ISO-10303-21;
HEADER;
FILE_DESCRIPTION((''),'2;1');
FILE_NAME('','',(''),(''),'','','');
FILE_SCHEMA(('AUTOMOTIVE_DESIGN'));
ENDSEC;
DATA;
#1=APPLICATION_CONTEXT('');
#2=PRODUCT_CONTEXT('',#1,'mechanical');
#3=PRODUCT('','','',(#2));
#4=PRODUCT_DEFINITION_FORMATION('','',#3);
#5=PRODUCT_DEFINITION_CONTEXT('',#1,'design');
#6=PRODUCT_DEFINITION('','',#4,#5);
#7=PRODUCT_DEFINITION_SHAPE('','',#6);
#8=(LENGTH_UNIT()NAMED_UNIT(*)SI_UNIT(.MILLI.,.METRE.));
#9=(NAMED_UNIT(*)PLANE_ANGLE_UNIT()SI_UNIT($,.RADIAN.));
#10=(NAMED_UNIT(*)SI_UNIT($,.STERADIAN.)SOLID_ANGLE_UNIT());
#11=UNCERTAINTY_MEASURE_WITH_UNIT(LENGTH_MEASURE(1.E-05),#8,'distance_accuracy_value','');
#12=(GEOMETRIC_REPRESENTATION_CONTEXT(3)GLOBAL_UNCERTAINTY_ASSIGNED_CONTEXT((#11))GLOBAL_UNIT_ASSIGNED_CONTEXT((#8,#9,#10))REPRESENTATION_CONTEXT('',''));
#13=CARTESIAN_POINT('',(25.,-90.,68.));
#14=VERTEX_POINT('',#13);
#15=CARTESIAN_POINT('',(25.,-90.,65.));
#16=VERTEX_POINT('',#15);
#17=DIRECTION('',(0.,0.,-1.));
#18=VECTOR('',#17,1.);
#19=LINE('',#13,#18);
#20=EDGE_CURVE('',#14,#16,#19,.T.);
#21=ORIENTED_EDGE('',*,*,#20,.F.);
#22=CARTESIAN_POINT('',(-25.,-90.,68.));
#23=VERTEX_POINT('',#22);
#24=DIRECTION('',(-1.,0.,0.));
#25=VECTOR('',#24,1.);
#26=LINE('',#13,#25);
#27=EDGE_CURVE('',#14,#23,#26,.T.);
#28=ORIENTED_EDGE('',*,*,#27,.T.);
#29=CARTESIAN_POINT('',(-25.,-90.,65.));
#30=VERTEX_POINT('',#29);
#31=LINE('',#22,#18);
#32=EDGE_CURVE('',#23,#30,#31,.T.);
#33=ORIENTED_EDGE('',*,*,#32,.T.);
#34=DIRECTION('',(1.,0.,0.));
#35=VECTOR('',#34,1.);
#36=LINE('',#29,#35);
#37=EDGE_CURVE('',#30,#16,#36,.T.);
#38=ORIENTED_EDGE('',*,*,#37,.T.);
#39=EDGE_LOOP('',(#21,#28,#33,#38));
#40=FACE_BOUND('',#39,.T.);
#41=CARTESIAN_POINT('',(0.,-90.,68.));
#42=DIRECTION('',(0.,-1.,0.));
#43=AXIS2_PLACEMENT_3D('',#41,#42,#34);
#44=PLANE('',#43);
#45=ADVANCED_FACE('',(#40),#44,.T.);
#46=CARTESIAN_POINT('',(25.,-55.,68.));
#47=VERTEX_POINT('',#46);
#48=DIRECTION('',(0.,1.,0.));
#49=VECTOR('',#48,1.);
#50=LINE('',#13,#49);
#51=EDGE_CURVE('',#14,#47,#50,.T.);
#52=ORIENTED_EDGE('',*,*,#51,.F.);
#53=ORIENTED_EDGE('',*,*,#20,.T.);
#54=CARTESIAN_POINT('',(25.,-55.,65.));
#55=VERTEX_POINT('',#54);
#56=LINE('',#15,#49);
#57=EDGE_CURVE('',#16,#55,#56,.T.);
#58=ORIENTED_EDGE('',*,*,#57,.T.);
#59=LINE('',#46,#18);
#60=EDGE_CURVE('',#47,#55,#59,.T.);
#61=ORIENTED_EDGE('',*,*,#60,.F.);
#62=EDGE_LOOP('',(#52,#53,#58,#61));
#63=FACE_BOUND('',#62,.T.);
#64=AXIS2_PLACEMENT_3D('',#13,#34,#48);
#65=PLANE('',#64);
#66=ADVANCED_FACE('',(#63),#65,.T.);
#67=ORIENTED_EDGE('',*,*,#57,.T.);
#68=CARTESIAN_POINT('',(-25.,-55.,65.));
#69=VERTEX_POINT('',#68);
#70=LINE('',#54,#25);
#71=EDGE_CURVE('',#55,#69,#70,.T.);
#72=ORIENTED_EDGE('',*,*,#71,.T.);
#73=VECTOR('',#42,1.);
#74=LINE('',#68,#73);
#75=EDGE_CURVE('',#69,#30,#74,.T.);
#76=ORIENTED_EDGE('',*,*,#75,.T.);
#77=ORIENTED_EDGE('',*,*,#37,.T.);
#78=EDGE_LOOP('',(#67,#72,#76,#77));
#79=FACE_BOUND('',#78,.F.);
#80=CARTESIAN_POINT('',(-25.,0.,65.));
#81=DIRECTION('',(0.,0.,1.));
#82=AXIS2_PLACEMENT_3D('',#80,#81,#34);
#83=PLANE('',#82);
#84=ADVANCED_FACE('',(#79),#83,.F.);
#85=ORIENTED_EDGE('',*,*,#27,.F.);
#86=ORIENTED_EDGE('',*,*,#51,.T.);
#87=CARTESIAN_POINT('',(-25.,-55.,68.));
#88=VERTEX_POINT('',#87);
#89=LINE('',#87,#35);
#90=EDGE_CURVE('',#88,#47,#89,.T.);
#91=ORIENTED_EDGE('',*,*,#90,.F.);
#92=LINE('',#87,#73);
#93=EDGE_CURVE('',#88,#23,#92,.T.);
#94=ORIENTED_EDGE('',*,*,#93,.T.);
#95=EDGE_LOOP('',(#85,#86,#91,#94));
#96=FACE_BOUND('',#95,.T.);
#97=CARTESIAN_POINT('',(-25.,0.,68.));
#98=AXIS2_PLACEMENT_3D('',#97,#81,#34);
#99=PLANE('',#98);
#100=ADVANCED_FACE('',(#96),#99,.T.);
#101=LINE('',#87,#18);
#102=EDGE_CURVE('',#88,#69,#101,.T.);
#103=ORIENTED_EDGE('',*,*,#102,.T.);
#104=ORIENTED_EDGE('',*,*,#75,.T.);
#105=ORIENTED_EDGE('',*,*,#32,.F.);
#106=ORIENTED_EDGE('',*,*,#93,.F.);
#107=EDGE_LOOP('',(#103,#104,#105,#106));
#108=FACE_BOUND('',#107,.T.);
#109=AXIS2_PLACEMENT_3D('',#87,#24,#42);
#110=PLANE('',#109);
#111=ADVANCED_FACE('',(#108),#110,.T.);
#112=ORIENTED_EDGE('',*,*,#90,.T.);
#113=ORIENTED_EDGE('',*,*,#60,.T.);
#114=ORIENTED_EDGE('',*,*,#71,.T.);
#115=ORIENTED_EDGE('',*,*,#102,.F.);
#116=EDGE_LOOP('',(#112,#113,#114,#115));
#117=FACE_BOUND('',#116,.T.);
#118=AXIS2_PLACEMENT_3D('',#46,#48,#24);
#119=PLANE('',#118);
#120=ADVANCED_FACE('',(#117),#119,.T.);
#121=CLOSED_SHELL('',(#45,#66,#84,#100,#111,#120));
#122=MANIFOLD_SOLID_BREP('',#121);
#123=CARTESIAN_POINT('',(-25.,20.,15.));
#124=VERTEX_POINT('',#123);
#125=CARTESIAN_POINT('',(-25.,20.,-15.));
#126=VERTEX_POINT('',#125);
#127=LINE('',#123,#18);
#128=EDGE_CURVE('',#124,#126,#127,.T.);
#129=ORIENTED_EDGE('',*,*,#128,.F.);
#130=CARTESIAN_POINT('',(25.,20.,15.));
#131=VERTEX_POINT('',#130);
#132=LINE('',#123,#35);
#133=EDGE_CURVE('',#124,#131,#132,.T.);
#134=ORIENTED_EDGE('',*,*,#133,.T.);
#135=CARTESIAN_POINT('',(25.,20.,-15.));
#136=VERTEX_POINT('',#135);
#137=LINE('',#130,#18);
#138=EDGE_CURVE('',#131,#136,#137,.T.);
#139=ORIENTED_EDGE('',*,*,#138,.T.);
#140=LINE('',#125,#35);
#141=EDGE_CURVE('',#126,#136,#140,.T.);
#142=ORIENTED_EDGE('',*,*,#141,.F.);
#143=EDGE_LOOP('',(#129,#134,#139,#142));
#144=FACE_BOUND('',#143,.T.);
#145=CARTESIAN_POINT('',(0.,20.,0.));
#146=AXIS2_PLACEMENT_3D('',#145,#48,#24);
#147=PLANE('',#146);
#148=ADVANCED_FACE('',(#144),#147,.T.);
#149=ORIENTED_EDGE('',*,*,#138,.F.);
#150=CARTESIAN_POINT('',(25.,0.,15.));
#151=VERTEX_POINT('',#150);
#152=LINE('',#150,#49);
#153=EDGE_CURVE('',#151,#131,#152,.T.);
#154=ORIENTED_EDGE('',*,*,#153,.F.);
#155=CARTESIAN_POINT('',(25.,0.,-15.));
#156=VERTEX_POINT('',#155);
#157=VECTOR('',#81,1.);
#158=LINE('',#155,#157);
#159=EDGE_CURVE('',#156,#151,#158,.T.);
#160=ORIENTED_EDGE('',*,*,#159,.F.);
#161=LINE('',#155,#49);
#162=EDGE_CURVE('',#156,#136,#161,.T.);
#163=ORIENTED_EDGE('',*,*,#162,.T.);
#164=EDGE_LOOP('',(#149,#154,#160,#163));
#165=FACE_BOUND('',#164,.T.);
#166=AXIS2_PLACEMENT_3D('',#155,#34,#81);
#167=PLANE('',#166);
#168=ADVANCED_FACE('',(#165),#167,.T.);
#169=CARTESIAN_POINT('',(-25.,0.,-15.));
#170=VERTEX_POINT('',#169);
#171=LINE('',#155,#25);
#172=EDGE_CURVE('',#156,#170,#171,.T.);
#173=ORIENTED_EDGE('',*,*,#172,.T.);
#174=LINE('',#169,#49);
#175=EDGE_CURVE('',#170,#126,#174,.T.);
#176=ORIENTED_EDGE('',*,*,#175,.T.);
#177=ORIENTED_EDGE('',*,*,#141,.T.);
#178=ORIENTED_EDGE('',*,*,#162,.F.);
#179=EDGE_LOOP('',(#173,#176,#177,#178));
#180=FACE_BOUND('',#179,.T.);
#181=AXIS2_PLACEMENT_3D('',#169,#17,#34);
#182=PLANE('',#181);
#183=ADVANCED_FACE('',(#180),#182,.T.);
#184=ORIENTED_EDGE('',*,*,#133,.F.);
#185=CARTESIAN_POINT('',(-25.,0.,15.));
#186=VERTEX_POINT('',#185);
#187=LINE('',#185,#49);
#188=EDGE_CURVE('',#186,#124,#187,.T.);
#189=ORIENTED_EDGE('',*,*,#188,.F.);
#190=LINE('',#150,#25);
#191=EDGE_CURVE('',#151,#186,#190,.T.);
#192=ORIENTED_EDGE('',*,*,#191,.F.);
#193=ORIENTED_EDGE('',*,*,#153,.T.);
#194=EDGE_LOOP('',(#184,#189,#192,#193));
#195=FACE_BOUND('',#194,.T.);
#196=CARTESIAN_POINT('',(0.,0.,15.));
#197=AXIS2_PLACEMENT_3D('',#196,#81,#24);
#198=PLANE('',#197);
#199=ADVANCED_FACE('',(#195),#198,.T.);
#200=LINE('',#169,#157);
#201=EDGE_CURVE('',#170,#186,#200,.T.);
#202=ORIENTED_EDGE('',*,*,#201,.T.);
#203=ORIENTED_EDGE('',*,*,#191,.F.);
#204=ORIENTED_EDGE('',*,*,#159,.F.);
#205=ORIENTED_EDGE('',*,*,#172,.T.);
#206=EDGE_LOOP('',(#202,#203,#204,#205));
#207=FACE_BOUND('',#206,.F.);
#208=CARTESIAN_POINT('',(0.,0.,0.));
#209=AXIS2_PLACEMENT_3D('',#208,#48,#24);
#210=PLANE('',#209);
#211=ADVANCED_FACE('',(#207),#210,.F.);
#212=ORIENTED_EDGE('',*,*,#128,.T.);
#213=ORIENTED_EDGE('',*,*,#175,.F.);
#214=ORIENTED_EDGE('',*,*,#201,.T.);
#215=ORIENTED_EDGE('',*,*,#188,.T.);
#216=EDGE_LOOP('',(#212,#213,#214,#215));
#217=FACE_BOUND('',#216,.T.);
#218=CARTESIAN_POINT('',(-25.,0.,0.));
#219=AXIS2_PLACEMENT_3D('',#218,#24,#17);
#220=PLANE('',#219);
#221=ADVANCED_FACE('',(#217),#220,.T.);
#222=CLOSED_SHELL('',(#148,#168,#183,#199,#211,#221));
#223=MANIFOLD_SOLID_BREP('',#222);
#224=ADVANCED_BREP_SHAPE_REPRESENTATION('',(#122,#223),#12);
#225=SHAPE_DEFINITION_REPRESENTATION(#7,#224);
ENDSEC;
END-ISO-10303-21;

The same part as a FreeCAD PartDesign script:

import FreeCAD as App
import Part
import Sketcher

V = App.Vector
Q = App.Units.Quantity


def add_polygon(sketch, points):
    """Adds a closed chain of lines whose ends are joined by coincident constraints."""
    first, n = sketch.GeometryCount, len(points)
    for a, b in zip(points, points[1:] + points[:1]):
        sketch.addGeometry(Part.LineSegment(App.Vector(*a, 0), App.Vector(*b, 0)), False)
    for i in range(n):
        sketch.addConstraint(Sketcher.Constraint("Coincident", first + i, 2, first + (i + 1) % n, 1))

doc = App.newDocument("Part")
params = doc.addObject("Spreadsheet::Sheet", "Params")
for row, (alias, value) in enumerate([
    ("sketch1_width", "50 mm"),
    ("sketch1_height", "30 mm"),
    ("pad1_length", "20 mm"),
    ("sketch2_width", "50 mm"),
    ("sketch2_height", "35 mm"),
    ("pad2_length", "3 mm"),
], start=1):
    params.set(f"A{row}", alias)
    params.set(f"B{row}", "=" + value)
    params.setAlias(f"B{row}", alias)

body = doc.addObject("PartDesign::Body", "Body")
body.AllowCompound = True

sketch1 = body.newObject("Sketcher::SketchObject", "Sketch")
sketch1.AttachmentSupport = (doc.getObject("XZ_Plane"), [""])
sketch1.MapMode = "FlatFace"
add_polygon(sketch1, [(-25, -15), (-25, 15), (25, 15), (25, -15)])
sketch1.addConstraint([
    Sketcher.Constraint("Vertical", 0),
    Sketcher.Constraint("Horizontal", 1),
    Sketcher.Constraint("Vertical", 2),
    Sketcher.Constraint("Horizontal", 3),
    Sketcher.Constraint("Symmetric", 0, 2, 2, 2, -1, 1),
    Sketcher.Constraint("DistanceX", 1, 1, 1, 2, Q("50 mm")),
    Sketcher.Constraint("DistanceY", 0, 1, 0, 2, Q("30 mm")),
])
sketch1.setExpression("Constraints[9]", "Params.sketch1_width")
sketch1.setExpression("Constraints[10]", "Params.sketch1_height")
pad1 = body.newObject("PartDesign::Pad", "Pad")
pad1.Profile = sketch1
pad1.setExpression("Length", "Params.pad1_length")
pad1.Reversed = True

sketch2 = body.newObject("Sketcher::SketchObject", "Sketch001")
sketch2.AttachmentSupport = (doc.getObject("XY_Plane"), [""])
sketch2.MapMode = "FlatFace"
sketch2.AttachmentOffset = App.Placement(V(0, 0, 68), App.Rotation())
add_polygon(sketch2, [(25, -90), (25, -55), (-25, -55), (-25, -90)])
sketch2.addConstraint([
    Sketcher.Constraint("Vertical", 0),
    Sketcher.Constraint("Horizontal", 1),
    Sketcher.Constraint("Vertical", 2),
    Sketcher.Constraint("Horizontal", 3),
    Sketcher.Constraint("DistanceX", 1, 2, 1, 1, Q("50 mm")),
    Sketcher.Constraint("DistanceY", 0, 1, 0, 2, Q("35 mm")),
    Sketcher.Constraint("DistanceY", 0, 2, -1, 1, Q("55 mm")),
    Sketcher.Constraint("DistanceX", -1, 1, 0, 2, Q("25 mm")),
])
sketch2.setExpression("Constraints[8]", "Params.sketch2_width")
sketch2.setExpression("Constraints[9]", "Params.sketch2_height")
pad2 = body.newObject("PartDesign::Pad", "Pad001")
pad2.Profile = sketch2
pad2.setExpression("Length", "Params.pad2_length")
pad2.Reversed = True

doc.recompute()
